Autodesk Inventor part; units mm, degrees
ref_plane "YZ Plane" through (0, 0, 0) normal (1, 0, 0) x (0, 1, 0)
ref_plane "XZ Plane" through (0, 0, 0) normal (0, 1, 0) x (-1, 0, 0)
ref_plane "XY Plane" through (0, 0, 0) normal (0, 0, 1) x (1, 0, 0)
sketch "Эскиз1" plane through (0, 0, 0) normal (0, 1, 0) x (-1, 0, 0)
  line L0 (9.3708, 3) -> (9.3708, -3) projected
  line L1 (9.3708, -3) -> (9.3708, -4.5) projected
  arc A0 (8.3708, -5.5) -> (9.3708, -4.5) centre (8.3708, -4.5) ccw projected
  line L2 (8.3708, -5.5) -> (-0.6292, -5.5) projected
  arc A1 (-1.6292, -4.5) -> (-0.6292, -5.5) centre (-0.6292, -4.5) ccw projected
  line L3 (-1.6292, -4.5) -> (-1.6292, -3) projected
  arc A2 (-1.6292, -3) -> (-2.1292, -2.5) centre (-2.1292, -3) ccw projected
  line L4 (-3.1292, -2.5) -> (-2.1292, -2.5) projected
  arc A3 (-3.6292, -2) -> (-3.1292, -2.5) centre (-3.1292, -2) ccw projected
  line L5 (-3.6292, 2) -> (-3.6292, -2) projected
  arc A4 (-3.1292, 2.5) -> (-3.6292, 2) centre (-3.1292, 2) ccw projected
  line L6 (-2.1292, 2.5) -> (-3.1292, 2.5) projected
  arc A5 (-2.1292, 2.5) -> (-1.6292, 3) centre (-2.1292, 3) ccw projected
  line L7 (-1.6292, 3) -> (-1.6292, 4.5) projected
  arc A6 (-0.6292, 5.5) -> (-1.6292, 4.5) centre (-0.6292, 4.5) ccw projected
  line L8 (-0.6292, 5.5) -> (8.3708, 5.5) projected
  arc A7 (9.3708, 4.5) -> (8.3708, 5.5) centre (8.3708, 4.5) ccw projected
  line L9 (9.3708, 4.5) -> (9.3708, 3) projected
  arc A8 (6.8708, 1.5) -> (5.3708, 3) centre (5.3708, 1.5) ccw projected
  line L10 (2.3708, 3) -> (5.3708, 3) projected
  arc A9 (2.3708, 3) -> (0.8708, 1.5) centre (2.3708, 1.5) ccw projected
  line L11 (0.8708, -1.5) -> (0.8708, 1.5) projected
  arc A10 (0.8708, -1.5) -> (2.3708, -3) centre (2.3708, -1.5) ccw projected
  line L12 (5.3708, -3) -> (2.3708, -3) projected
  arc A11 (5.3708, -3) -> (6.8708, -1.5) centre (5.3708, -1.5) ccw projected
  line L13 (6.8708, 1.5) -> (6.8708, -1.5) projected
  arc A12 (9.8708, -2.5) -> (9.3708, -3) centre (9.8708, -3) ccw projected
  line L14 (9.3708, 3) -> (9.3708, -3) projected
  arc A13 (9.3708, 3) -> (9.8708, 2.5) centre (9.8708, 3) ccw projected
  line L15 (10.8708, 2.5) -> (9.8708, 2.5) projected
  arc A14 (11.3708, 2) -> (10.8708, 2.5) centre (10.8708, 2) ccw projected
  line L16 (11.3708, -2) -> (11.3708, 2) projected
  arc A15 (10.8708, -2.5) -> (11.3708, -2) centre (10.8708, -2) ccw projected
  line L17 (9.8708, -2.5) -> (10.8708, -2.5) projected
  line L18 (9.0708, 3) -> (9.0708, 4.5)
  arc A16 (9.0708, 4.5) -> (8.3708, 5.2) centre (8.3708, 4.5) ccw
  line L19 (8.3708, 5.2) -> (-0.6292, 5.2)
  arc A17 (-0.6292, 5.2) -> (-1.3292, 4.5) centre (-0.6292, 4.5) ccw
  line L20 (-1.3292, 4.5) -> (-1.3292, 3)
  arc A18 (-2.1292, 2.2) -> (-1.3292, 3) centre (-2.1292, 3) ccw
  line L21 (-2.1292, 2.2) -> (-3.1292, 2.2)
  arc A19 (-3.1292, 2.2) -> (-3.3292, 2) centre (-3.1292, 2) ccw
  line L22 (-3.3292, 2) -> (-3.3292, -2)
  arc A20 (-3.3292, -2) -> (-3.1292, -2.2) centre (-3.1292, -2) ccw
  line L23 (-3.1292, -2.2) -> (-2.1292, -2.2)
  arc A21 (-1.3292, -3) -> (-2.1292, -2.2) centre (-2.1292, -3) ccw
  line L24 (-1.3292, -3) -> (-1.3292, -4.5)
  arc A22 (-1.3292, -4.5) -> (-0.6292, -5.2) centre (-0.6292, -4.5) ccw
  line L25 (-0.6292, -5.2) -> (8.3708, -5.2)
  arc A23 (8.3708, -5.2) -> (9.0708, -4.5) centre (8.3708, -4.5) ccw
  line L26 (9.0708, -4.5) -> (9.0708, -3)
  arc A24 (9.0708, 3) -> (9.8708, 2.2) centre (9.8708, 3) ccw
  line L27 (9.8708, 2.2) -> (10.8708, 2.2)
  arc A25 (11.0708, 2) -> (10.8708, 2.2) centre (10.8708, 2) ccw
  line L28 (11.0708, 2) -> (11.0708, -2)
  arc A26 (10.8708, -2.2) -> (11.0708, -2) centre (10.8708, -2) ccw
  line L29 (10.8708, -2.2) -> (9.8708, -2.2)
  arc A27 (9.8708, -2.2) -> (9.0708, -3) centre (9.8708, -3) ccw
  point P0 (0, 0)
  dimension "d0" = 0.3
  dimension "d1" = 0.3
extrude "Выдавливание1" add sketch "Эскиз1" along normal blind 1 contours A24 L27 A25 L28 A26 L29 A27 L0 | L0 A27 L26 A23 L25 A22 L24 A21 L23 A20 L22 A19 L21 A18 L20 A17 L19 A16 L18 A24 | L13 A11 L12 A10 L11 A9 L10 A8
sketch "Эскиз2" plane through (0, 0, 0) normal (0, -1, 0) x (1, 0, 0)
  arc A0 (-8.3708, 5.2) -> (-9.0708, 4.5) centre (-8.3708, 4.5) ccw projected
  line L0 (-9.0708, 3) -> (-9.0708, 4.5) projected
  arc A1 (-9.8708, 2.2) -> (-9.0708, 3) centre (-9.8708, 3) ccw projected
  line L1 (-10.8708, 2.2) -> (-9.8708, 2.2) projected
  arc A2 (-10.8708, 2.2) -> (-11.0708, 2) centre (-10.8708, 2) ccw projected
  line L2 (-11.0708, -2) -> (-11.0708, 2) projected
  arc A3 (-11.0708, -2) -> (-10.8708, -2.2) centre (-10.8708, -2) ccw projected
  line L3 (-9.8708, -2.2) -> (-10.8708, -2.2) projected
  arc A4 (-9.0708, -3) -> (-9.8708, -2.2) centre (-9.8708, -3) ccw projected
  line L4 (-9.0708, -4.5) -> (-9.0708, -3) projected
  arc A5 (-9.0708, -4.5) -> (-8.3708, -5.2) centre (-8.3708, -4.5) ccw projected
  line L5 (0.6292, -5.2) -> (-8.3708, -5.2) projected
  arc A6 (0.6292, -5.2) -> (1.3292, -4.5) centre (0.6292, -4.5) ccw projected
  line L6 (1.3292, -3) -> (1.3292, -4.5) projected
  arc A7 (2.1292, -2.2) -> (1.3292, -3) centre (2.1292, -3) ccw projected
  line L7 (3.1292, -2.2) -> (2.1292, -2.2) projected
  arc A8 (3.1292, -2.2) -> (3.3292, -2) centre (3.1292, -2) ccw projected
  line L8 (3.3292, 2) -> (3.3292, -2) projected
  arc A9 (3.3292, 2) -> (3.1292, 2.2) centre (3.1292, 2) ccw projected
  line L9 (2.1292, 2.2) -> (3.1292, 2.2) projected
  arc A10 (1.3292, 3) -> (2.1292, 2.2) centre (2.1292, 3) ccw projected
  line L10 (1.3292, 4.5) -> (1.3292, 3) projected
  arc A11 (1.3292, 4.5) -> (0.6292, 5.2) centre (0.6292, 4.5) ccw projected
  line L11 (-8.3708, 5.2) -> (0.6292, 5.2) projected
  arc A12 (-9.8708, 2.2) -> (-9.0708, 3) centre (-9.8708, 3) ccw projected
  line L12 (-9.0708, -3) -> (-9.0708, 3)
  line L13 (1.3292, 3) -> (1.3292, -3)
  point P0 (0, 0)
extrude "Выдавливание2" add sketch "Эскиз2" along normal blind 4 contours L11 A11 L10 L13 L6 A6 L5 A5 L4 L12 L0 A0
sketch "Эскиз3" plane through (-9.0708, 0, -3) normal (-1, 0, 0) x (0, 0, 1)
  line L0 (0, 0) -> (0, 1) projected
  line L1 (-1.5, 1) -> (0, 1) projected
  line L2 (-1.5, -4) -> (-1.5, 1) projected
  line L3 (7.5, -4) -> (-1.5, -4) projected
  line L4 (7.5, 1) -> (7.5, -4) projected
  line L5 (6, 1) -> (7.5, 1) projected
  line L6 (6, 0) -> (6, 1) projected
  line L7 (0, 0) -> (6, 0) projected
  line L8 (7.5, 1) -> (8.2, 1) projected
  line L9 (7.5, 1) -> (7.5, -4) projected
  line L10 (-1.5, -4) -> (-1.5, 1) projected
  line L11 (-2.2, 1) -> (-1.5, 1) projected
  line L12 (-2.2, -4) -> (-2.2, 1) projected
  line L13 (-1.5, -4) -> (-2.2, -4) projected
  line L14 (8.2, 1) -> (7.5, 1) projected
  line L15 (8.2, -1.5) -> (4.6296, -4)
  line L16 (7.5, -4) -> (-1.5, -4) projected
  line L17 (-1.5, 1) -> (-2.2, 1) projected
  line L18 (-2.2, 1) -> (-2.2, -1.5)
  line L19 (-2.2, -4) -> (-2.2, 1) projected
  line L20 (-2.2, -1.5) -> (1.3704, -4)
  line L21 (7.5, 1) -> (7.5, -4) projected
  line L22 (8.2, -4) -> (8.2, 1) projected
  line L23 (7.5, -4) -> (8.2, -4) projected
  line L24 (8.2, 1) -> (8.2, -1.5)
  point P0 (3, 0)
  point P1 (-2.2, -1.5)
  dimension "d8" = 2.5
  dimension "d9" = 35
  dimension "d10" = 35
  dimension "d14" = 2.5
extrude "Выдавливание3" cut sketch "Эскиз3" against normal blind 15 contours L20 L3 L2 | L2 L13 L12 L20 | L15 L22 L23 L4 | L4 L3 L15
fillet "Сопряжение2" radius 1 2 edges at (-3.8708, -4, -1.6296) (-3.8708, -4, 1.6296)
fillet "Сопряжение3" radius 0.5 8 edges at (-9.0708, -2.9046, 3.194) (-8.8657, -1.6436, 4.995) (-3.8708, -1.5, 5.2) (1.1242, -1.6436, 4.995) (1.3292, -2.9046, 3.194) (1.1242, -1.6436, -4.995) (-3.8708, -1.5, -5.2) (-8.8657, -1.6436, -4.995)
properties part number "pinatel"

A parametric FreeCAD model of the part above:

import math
import FreeCAD as App
import Part
import Sketcher
Q = App.Units.Quantity


def edges_at(feature, points):
    """Names of the edges that pass closest to the given points."""
    edges = feature.Shape.Edges
    near = lambda p: min(range(len(edges)), key=lambda i: edges[i].distToShape(Part.Vertex(*p))[0])
    return sorted({f"Edge{near(p) + 1}" for p in points})

doc = App.newDocument("Part")
params = doc.addObject("Spreadsheet::Sheet", "Params")
for row, (alias, value) in enumerate([
    ("sketch1_radius", "0.8 mm"),
    ("sketch1_radius2", "0.7 mm"),
    ("sketch1_radius3", "0.2 mm"),
    ("sketch1_width", "9 mm"),
    ("sketch1_width2", "1 mm"),
    ("pad1_length", "1 mm"),
    ("sketch2_radius", "0.7 mm"),
    ("sketch2_width", "9 mm"),
    ("pad2_length", "4 mm"),
    ("sketch3_width", "2.5 mm"),
    ("pocket1_length", "15 mm"),
    ("fillet_radius", "1 mm"),
    ("fillet2_radius", "0.5 mm"),
], start=1):
    params.set(f"A{row}", alias)
    params.set(f"B{row}", "=" + value)
    params.setAlias(f"B{row}", alias)

body = doc.addObject("PartDesign::Body", "Body")

# Sketch on XZ plane
sketch1 = doc.addObject("Sketcher::SketchObject", "Sketch")
body.addObject(sketch1)
sketch1.AttachmentSupport = (doc.XZ_Plane, [""])
sketch1.MapMode = "FlatFace"
sketch1.addGeometry([
    Part.ArcOfCircle(Part.Circle(App.Vector(-9.8708, 3, 0), App.Vector(0, 0, 1), 0.8), math.radians(-90), math.radians(0)),  # 0
    Part.LineSegment(App.Vector(-9.0708, 3, 0), App.Vector(-9.0708, 4.5, 0)),  # 1
    Part.ArcOfCircle(Part.Circle(App.Vector(-8.3708, 4.5, 0), App.Vector(0, 0, 1), 0.7), math.radians(90), math.radians(180)),  # 2
    Part.LineSegment(App.Vector(-8.3708, 5.2, 0), App.Vector(0.6292, 5.2, 0)),  # 3
    Part.ArcOfCircle(Part.Circle(App.Vector(0.6292, 4.5, 0), App.Vector(0, 0, 1), 0.7), math.radians(0), math.radians(90)),  # 4
    Part.LineSegment(App.Vector(1.3292, 4.5, 0), App.Vector(1.3292, 3, 0)),  # 5
    Part.ArcOfCircle(Part.Circle(App.Vector(2.1292, 3, 0), App.Vector(0, 0, 1), 0.8), math.radians(180), math.radians(270)),  # 6
    Part.LineSegment(App.Vector(2.1292, 2.2, 0), App.Vector(3.1292, 2.2, 0)),  # 7
    Part.ArcOfCircle(Part.Circle(App.Vector(3.1292, 2, 0), App.Vector(0, 0, 1), 0.2), math.radians(0), math.radians(90)),  # 8
    Part.LineSegment(App.Vector(3.3292, 2, 0), App.Vector(3.3292, -2, 0)),  # 9
    Part.ArcOfCircle(Part.Circle(App.Vector(3.1292, -2, 0), App.Vector(0, 0, 1), 0.2), math.radians(-90), math.radians(0)),  # 10
    Part.LineSegment(App.Vector(3.1292, -2.2, 0), App.Vector(2.1292, -2.2, 0)),  # 11
    Part.ArcOfCircle(Part.Circle(App.Vector(2.1292, -3, 0), App.Vector(0, 0, 1), 0.8), math.radians(90), math.radians(180)),  # 12
    Part.LineSegment(App.Vector(1.3292, -3, 0), App.Vector(1.3292, -4.5, 0)),  # 13
    Part.ArcOfCircle(Part.Circle(App.Vector(0.6292, -4.5, 0), App.Vector(0, 0, 1), 0.7), math.radians(-90), math.radians(0)),  # 14
    Part.LineSegment(App.Vector(0.6292, -5.2, 0), App.Vector(-8.3708, -5.2, 0)),  # 15
    Part.ArcOfCircle(Part.Circle(App.Vector(-8.3708, -4.5, 0), App.Vector(0, 0, 1), 0.7), math.radians(180), math.radians(270)),  # 16
    Part.LineSegment(App.Vector(-9.0708, -4.5, 0), App.Vector(-9.0708, -3, 0)),  # 17
    Part.ArcOfCircle(Part.Circle(App.Vector(-9.8708, -3, 0), App.Vector(0, 0, 1), 0.8), math.radians(0), math.radians(90)),  # 18
    Part.LineSegment(App.Vector(-9.8708, -2.2, 0), App.Vector(-10.8708, -2.2, 0)),  # 19
    Part.ArcOfCircle(Part.Circle(App.Vector(-10.8708, -2, 0), App.Vector(0, 0, 1), 0.2), math.radians(180), math.radians(270)),  # 20
    Part.LineSegment(App.Vector(-11.0708, -2, 0), App.Vector(-11.0708, 2, 0)),  # 21
    Part.ArcOfCircle(Part.Circle(App.Vector(-10.8708, 2, 0), App.Vector(0, 0, 1), 0.2), math.radians(90), math.radians(180)),  # 22
    Part.LineSegment(App.Vector(-10.8708, 2.2, 0), App.Vector(-9.8708, 2.2, 0)),  # 23
], False)
sketch1.addConstraint([
    Sketcher.Constraint("Tangent", 0, 2, 1, 1),
    Sketcher.Constraint("Tangent", 1, 2, 2, 2),
    Sketcher.Constraint("Tangent", 2, 1, 3, 1),
    Sketcher.Constraint("Tangent", 3, 2, 4, 2),
    Sketcher.Constraint("Tangent", 4, 1, 5, 1),
    Sketcher.Constraint("Tangent", 5, 2, 6, 1),
    Sketcher.Constraint("Tangent", 6, 2, 7, 1),
    Sketcher.Constraint("Tangent", 7, 2, 8, 2),
    Sketcher.Constraint("Tangent", 8, 1, 9, 1),
    Sketcher.Constraint("Tangent", 9, 2, 10, 2),
    Sketcher.Constraint("Tangent", 10, 1, 11, 1),
    Sketcher.Constraint("Tangent", 11, 2, 12, 1),
    Sketcher.Constraint("Tangent", 12, 2, 13, 1),
    Sketcher.Constraint("Tangent", 13, 2, 14, 2),
    Sketcher.Constraint("Tangent", 14, 1, 15, 1),
    Sketcher.Constraint("Tangent", 15, 2, 16, 2),
    Sketcher.Constraint("Tangent", 16, 1, 17, 1),
    Sketcher.Constraint("Tangent", 17, 2, 18, 1),
    Sketcher.Constraint("Tangent", 18, 2, 19, 1),
    Sketcher.Constraint("Tangent", 19, 2, 20, 2),
    Sketcher.Constraint("Tangent", 20, 1, 21, 1),
    Sketcher.Constraint("Tangent", 21, 2, 22, 2),
    Sketcher.Constraint("Tangent", 22, 1, 23, 1),
    Sketcher.Constraint("Tangent", 23, 2, 0, 1),
    Sketcher.Constraint("Vertical", 1),
    Sketcher.Constraint("Horizontal", 3),
    Sketcher.Constraint("Vertical", 5),
    Sketcher.Constraint("Horizontal", 7),
    Sketcher.Constraint("Vertical", 9),
    Sketcher.Constraint("Horizontal", 11),
    Sketcher.Constraint("Vertical", 13),
    Sketcher.Constraint("Horizontal", 15),
    Sketcher.Constraint("Vertical", 17),
    Sketcher.Constraint("Horizontal", 19),
    Sketcher.Constraint("Vertical", 21),
    Sketcher.Constraint("Horizontal", 23),
    Sketcher.Constraint("Equal", 2, 4),
    Sketcher.Constraint("Equal", 0, 6),
    Sketcher.Constraint("Equal", 8, 10),
    Sketcher.Constraint("Equal", 6, 12),
    Sketcher.Constraint("Equal", 4, 14),
    Sketcher.Constraint("Equal", 14, 16),
    Sketcher.Constraint("Equal", 12, 18),
    Sketcher.Constraint("Equal", 10, 20),
    Sketcher.Constraint("Equal", 20, 22),
    Sketcher.Constraint("Symmetric", 6, 3, 12, 3, -1),
    Sketcher.Constraint("Symmetric", 2, 3, 16, 3, -1),
    Sketcher.Constraint("Horizontal", 0, 3, 6, 3),
    Sketcher.Constraint("Horizontal", 12, 3, 18, 3),
    Sketcher.Constraint("Equal", 11, 19),
    Sketcher.Constraint("Radius", 0, Q("0.8 mm")),
    Sketcher.Constraint("Radius", 2, Q("0.7 mm")),
    Sketcher.Constraint("Radius", 8, Q("0.2 mm")),
    Sketcher.Constraint("DistanceX", 3, 1, 3, 2, Q("9 mm")),
    Sketcher.Constraint("DistanceX", 7, 1, 7, 2, Q("1 mm")),
    Sketcher.Constraint("DistanceY", 9, 2, 9, 1, Q("4 mm")),
    Sketcher.Constraint("DistanceY", 1, 1, 1, 2, Q("1.5 mm")),
    Sketcher.Constraint("DistanceX", 0, 3, -1, 1, Q("9.8708 mm")),
])
sketch1.setExpression("Constraints[50]", "Params.sketch1_radius")
sketch1.setExpression("Constraints[51]", "Params.sketch1_radius2")
sketch1.setExpression("Constraints[52]", "Params.sketch1_radius3")
sketch1.setExpression("Constraints[53]", "Params.sketch1_width")
sketch1.setExpression("Constraints[54]", "Params.sketch1_width2")
pad1 = doc.addObject("PartDesign::Pad", "Pad")
body.addObject(pad1)
pad1.Profile = sketch1
pad1.setExpression("Length", "Params.pad1_length")
pad1.Reversed = True

# Sketch on XZ plane
sketch2 = doc.addObject("Sketcher::SketchObject", "Sketch001")
body.addObject(sketch2)
sketch2.AttachmentSupport = (doc.XZ_Plane, [""])
sketch2.MapMode = "FlatFace"
sketch2.addGeometry([
    Part.LineSegment(App.Vector(0.6292, 5.2, 0), App.Vector(-8.3708, 5.2, 0)),  # 0
    Part.ArcOfCircle(Part.Circle(App.Vector(-8.3708, 4.5, 0), App.Vector(0, 0, 1), 0.7), math.radians(90), math.radians(180)),  # 1
    Part.LineSegment(App.Vector(-9.0708, 4.5, 0), App.Vector(-9.0708, -4.5, 0)),  # 2
    Part.ArcOfCircle(Part.Circle(App.Vector(-8.3708, -4.5, 0), App.Vector(0, 0, 1), 0.7), math.radians(180), math.radians(270)),  # 3
    Part.LineSegment(App.Vector(-8.3708, -5.2, 0), App.Vector(0.6292, -5.2, 0)),  # 4
    Part.ArcOfCircle(Part.Circle(App.Vector(0.6292, -4.5, 0), App.Vector(0, 0, 1), 0.7), math.radians(-90), math.radians(0)),  # 5
    Part.LineSegment(App.Vector(1.3292, -4.5, 0), App.Vector(1.3292, 4.5, 0)),  # 6
    Part.ArcOfCircle(Part.Circle(App.Vector(0.6292, 4.5, 0), App.Vector(0, 0, 1), 0.7), math.radians(0), math.radians(90)),  # 7
], False)
sketch2.addConstraint([
    Sketcher.Constraint("Tangent", 0, 2, 1, 1),
    Sketcher.Constraint("Tangent", 1, 2, 2, 1),
    Sketcher.Constraint("Tangent", 2, 2, 3, 1),
    Sketcher.Constraint("Tangent", 3, 2, 4, 1),
    Sketcher.Constraint("Tangent", 4, 2, 5, 1),
    Sketcher.Constraint("Tangent", 5, 2, 6, 1),
    Sketcher.Constraint("Tangent", 6, 2, 7, 1),
    Sketcher.Constraint("Tangent", 7, 2, 0, 1),
    Sketcher.Constraint("Horizontal", 0),
    Sketcher.Constraint("Vertical", 2),
    Sketcher.Constraint("Horizontal", 4),
    Sketcher.Constraint("Vertical", 6),
    Sketcher.Constraint("Equal", 1, 3),
    Sketcher.Constraint("Equal", 3, 5),
    Sketcher.Constraint("Equal", 5, 7),
    Sketcher.Constraint("Equal", 4, 2),
    Sketcher.Constraint("Radius", 1, Q("0.7 mm")),
    Sketcher.Constraint("DistanceX", 0, 2, 0, 1, Q("9 mm")),
    Sketcher.Constraint("DistanceY", -1, 1, 1, 3, Q("4.5 mm")),
    Sketcher.Constraint("DistanceX", 1, 3, -1, 1, Q("8.3708 mm")),
])
sketch2.setExpression("Constraints[16]", "Params.sketch2_radius")
sketch2.setExpression("Constraints[17]", "Params.sketch2_width")
pad2 = doc.addObject("PartDesign::Pad", "Pad001")
body.addObject(pad2)
pad2.Profile = sketch2
pad2.setExpression("Length", "Params.pad2_length")

# Sketch on YZ plane
sketch3 = doc.addObject("Sketcher::SketchObject", "Sketch002")
body.addObject(sketch3)
sketch3.AttachmentSupport = (doc.YZ_Plane, [""])
sketch3.MapMode = "FlatFace"
sketch3.AttachmentOffset = App.Placement(App.Vector(0, 0, -9.0708), App.Rotation())
sketch3.addGeometry([
    Part.LineSegment(App.Vector(-4, -1.6296, 0), App.Vector(-1.5, -5.2, 0)),  # 0
    Part.LineSegment(App.Vector(-1.5, -5.2, 0), App.Vector(-4, -5.2, 0)),  # 1
    Part.LineSegment(App.Vector(-4, -5.2, 0), App.Vector(-4, -1.6296, 0)),  # 2
    Part.LineSegment(App.Vector(-1.5, 5.2, 0), App.Vector(-4, 1.6296, 0)),  # 3
    Part.LineSegment(App.Vector(-4, 1.6296, 0), App.Vector(-4, 5.2, 0)),  # 4
    Part.LineSegment(App.Vector(-4, 5.2, 0), App.Vector(-1.5, 5.2, 0)),  # 5
], False)
sketch3.addConstraint([
    Sketcher.Constraint("Coincident", 0, 2, 1, 1),
    Sketcher.Constraint("Coincident", 1, 2, 2, 1),
    Sketcher.Constraint("Coincident", 2, 2, 0, 1),
    Sketcher.Constraint("Coincident", 3, 2, 4, 1),
    Sketcher.Constraint("Coincident", 4, 2, 5, 1),
    Sketcher.Constraint("Coincident", 5, 2, 3, 1),
    Sketcher.Constraint("Horizontal", 1),
    Sketcher.Constraint("Vertical", 2),
    Sketcher.Constraint("Vertical", 4),
    Sketcher.Constraint("Horizontal", 5),
    Sketcher.Constraint("Symmetric", 2, 2, 3, 2, -1),
    Sketcher.Constraint("Symmetric", 0, 2, 5, 2, -1),
    Sketcher.Constraint("DistanceX", 1, 2, 1, 1, Q("2.5 mm")),
    Sketcher.Constraint("Angle", 0, Q("-55.0002 deg")),
    Sketcher.Constraint("DistanceX", 1, 2, -1, 1, Q("4 mm")),
    Sketcher.Constraint("DistanceY", 0, 2, -1, 1, Q("5.2 mm")),
])
sketch3.setExpression("Constraints[12]", "Params.sketch3_width")
pocket1 = doc.addObject("PartDesign::Pocket", "Pocket")
body.addObject(pocket1)
pocket1.Profile = sketch3
pocket1.setExpression("Length", "Params.pocket1_length")
pocket1.Reversed = True
doc.recompute()

fillet = doc.addObject("PartDesign::Fillet", "Fillet")
body.addObject(fillet)
fillet.Base = (pocket1, edges_at(pocket1, [(-3.871, -4, -1.63), (-3.871, -4, 1.63)]))
fillet.setExpression("Radius", "Params.fillet_radius")
doc.recompute()

fillet2 = doc.addObject("PartDesign::Fillet", "Fillet001")
body.addObject(fillet2)
fillet2.Base = (fillet, edges_at(fillet, [
    (-9.071, -2.905, 3.194),
    (-8.866, -1.644, 4.995),
    (-3.871, -1.5, 5.2),
    (1.124, -1.644, 4.995),
    (1.329, -2.905, 3.194),
    (1.124, -1.644, -4.995),
    (-3.871, -1.5, -5.2),
    (-8.866, -1.644, -4.995),
]))
fillet2.setExpression("Radius", "Params.fillet2_radius")

doc.recompute()
